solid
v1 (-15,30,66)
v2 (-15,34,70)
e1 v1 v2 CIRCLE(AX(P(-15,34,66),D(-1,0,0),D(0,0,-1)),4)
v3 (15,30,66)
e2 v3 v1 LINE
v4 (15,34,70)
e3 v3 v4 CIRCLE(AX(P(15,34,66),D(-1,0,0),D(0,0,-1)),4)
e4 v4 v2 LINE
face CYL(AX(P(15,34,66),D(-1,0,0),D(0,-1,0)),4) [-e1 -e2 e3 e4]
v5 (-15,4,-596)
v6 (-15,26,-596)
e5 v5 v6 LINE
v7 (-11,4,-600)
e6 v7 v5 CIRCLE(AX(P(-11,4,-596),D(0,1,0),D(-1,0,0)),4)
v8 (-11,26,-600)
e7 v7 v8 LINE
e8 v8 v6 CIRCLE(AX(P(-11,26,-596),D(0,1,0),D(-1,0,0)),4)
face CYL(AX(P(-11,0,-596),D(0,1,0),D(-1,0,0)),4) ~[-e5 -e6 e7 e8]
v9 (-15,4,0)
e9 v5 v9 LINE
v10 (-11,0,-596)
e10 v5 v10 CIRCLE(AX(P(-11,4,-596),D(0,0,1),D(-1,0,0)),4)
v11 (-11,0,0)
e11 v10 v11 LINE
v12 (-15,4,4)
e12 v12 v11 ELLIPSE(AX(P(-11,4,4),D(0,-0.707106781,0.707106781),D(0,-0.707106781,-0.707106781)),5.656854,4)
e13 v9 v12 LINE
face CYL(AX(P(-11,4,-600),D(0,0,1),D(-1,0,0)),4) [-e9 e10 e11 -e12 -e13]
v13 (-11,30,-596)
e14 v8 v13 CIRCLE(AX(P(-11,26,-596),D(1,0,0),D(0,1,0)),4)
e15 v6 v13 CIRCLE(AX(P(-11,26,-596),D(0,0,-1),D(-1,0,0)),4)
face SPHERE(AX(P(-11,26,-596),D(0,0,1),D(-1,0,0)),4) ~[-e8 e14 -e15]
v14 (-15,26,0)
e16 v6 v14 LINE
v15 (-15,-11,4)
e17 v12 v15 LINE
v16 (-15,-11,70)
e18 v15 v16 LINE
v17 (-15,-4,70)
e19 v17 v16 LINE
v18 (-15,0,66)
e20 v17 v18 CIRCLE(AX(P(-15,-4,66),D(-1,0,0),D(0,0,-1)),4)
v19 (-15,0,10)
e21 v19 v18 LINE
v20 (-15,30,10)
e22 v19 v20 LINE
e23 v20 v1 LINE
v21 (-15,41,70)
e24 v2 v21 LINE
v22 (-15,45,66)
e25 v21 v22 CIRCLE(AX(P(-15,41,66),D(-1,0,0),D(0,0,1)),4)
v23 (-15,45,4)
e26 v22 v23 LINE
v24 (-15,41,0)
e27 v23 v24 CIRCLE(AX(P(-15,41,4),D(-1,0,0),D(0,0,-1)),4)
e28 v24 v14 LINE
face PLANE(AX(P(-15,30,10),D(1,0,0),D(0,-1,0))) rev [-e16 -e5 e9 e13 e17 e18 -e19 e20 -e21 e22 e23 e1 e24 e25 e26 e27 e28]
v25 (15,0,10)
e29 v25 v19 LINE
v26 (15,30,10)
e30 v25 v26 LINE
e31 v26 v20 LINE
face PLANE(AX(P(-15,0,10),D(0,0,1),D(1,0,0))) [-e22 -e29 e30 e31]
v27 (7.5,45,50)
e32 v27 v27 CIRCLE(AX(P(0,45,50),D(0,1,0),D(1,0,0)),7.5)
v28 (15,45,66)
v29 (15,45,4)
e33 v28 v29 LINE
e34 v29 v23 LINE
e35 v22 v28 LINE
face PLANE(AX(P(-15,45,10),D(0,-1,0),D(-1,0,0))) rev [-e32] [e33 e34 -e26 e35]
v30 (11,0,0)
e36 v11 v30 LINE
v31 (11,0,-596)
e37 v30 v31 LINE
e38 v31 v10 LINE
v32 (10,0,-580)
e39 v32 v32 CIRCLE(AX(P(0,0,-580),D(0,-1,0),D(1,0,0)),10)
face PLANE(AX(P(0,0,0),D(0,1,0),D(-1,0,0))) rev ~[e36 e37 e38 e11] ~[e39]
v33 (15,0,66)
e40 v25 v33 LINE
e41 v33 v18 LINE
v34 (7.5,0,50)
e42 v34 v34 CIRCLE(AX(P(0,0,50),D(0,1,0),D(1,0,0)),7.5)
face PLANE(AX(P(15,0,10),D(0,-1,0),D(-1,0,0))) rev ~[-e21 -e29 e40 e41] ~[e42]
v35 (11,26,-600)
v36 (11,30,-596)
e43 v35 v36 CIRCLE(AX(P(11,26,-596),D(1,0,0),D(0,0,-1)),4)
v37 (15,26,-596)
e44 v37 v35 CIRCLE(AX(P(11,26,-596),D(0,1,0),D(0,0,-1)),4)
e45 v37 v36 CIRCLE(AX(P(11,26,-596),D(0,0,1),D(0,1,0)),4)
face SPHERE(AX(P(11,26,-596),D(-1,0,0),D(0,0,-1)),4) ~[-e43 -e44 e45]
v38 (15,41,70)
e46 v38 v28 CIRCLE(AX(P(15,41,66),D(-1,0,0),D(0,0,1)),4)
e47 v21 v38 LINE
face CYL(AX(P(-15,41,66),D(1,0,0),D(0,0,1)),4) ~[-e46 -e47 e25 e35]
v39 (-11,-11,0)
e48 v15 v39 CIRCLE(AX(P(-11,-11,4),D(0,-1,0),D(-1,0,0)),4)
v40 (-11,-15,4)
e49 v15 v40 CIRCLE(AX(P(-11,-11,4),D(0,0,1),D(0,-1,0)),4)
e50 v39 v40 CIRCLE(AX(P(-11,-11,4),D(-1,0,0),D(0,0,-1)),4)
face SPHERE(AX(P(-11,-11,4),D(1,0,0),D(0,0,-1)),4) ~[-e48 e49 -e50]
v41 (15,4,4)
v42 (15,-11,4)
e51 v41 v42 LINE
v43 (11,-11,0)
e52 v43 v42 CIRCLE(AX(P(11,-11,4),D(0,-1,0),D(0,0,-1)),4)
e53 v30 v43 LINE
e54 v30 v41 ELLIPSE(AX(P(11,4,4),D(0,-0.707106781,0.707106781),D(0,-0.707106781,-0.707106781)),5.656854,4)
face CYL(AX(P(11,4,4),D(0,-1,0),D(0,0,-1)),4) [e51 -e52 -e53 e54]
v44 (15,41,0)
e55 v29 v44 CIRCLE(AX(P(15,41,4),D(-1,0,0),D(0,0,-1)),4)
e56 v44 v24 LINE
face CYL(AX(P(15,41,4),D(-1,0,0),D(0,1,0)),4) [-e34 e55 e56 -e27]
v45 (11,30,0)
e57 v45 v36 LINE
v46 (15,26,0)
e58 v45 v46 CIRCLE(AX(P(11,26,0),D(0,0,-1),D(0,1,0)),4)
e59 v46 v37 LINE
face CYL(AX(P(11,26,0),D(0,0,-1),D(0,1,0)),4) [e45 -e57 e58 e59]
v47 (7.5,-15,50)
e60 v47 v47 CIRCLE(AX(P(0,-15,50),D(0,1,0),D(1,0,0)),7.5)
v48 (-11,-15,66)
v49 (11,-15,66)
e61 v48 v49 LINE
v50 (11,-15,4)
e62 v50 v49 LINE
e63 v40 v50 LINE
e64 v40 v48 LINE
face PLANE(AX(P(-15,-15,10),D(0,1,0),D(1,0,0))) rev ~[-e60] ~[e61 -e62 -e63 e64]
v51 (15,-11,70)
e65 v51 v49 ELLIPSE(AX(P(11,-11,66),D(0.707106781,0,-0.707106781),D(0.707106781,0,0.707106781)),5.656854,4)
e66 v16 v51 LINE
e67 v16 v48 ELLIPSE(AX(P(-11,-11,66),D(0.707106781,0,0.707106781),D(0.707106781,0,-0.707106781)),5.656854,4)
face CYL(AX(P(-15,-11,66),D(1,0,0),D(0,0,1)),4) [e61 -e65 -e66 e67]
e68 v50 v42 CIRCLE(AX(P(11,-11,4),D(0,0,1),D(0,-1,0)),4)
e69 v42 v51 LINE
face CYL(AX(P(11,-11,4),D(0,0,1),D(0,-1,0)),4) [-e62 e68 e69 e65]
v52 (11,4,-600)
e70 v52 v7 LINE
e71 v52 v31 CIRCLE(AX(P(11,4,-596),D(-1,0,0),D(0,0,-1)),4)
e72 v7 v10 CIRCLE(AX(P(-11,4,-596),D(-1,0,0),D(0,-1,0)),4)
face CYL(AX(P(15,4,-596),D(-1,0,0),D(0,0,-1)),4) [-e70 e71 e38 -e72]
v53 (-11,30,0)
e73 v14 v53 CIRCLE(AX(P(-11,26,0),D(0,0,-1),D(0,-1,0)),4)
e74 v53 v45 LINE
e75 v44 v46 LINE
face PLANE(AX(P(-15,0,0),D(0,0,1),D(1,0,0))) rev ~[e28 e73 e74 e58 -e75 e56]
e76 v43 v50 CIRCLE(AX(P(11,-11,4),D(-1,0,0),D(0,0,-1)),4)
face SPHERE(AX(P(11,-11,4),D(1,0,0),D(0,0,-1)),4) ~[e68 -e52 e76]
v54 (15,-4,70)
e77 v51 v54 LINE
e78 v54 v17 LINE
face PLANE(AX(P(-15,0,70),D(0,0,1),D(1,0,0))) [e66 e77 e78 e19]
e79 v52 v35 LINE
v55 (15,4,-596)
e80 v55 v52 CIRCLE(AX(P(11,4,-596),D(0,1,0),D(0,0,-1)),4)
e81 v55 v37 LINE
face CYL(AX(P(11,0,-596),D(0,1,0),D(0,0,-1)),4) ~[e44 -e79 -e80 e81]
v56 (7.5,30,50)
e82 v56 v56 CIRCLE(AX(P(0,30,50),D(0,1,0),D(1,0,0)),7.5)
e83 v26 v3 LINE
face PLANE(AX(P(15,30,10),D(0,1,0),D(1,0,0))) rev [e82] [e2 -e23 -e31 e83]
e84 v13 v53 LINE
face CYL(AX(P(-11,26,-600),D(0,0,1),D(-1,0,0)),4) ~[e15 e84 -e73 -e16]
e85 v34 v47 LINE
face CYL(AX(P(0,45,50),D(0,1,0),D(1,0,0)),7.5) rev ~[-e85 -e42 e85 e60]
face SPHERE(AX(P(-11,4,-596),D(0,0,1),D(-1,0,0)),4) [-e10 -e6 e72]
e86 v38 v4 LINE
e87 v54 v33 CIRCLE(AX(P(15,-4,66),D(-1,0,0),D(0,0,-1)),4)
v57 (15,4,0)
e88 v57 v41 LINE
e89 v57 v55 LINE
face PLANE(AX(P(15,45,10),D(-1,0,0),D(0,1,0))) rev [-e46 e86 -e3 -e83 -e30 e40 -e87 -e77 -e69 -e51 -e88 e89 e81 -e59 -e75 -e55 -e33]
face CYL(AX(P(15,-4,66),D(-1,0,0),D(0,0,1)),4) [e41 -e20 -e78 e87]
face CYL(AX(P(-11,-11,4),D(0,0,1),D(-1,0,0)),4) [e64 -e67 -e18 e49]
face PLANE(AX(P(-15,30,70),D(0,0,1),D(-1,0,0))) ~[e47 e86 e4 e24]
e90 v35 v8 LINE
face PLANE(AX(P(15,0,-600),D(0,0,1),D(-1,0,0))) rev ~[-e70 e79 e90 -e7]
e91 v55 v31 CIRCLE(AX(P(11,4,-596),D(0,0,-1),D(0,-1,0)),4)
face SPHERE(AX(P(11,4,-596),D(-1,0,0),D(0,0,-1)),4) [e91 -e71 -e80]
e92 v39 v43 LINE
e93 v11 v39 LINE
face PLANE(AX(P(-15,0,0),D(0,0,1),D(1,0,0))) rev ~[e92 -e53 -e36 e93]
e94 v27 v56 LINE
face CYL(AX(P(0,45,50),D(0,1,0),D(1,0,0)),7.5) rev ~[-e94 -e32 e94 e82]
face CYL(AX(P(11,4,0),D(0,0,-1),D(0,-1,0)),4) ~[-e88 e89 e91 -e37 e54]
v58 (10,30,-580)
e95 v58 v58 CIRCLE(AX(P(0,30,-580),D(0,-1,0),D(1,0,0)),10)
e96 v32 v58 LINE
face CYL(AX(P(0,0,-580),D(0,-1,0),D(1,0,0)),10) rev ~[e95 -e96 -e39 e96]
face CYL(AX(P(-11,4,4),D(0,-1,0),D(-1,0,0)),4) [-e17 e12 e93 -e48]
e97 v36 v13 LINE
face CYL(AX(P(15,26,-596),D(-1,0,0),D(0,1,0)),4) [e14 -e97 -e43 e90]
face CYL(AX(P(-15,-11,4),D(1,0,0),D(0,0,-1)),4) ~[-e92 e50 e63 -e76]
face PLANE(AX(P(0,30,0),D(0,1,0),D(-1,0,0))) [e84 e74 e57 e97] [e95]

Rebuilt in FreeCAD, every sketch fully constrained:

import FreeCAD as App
import Part
import Sketcher
from FreeCAD import Vector


def edges_at(feature, points):
    """Names of the edges that pass closest to the given points."""
    edges = feature.Shape.Edges
    near = lambda p: min(range(len(edges)), key=lambda i: edges[i].distToShape(Part.Vertex(*p))[0])
    return sorted({f"Edge{near(p) + 1}" for p in points})

doc = App.newDocument("Part")
params = doc.addObject("Spreadsheet::Sheet", "Params")
for row, (alias, value) in enumerate([
    ("sketch1_width", "30 mm"),
    ("sketch1_height", "600 mm"),
    ("pad1_length", "30 mm"),
    ("sketch2_width", "30 mm"),
    ("sketch2_height", "60 mm"),
    ("pad2_length", "10 mm"),
    ("sketch3_width", "30 mm"),
    ("sketch3_height", "15 mm"),
    ("pad3_length", "60 mm"),
    ("sketch4_diameter", "15 mm"),
    ("fillet_radius", "4 mm"),
    ("sketch5_diameter", "20 mm"),
    ("fillet2_radius", "4 mm"),
    ("fillet3_radius", "4 mm"),
], start=1):
    params.set(f"A{row}", alias)
    params.set(f"B{row}", "=" + value)
    params.setAlias(f"B{row}", alias)

body = doc.addObject("PartDesign::Body", "Body")

sketch1 = doc.addObject("Sketcher::SketchObject", "Sketch")
body.addObject(sketch1)
sketch1.AttachmentSupport = (doc.XZ_Plane, [""])
sketch1.MapMode = "FlatFace"
sketch1.addGeometry(Part.LineSegment(Vector(-15, -600, 0), Vector(-15, 0, 0)), False)
sketch1.addGeometry(Part.LineSegment(Vector(-15, 0, 0), Vector(15, 0, 0)), False)
sketch1.addGeometry(Part.LineSegment(Vector(15, 0, 0), Vector(15, -600, 0)), False)
sketch1.addGeometry(Part.LineSegment(Vector(15, -600, 0), Vector(-15, -600, 0)), False)
sketch1.addConstraint(Sketcher.Constraint("Coincident", 0, 2, 1, 1))
sketch1.addConstraint(Sketcher.Constraint("Coincident", 1, 2, 2, 1))
sketch1.addConstraint(Sketcher.Constraint("Coincident", 2, 2, 3, 1))
sketch1.addConstraint(Sketcher.Constraint("Coincident", 3, 2, 0, 1))
sketch1.addConstraint(Sketcher.Constraint("Vertical", 0))
sketch1.addConstraint(Sketcher.Constraint("Horizontal", 1))
sketch1.addConstraint(Sketcher.Constraint("Vertical", 2))
sketch1.addConstraint(Sketcher.Constraint("Horizontal", 3))
sketch1.addConstraint(Sketcher.Constraint("Symmetric", 0, 2, 1, 2, -1, 1))
sketch1.addConstraint(Sketcher.Constraint("DistanceX", 1, 1, 1, 2, 30.0))
sketch1.addConstraint(Sketcher.Constraint("DistanceY", 0, 1, 0, 2, 600.0))
sketch1.setExpression("Constraints[9]", "Params.sketch1_width")
sketch1.setExpression("Constraints[10]", "Params.sketch1_height")
pad1 = doc.addObject("PartDesign::Pad", "Pad")
body.addObject(pad1)
pad1.Profile = sketch1
pad1.setExpression("Length", "Params.pad1_length")
pad1.Reversed = True

sketch2 = doc.addObject("Sketcher::SketchObject", "Sketch001")
body.addObject(sketch2)
sketch2.AttachmentSupport = (doc.XY_Plane, [""])
sketch2.MapMode = "FlatFace"
sketch2.addGeometry(Part.LineSegment(Vector(-15, -15, 0), Vector(15, -15, 0)), False)
sketch2.addGeometry(Part.LineSegment(Vector(15, -15, 0), Vector(15, 45, 0)), False)
sketch2.addGeometry(Part.LineSegment(Vector(15, 45, 0), Vector(-15, 45, 0)), False)
sketch2.addGeometry(Part.LineSegment(Vector(-15, 45, 0), Vector(-15, -15, 0)), False)
sketch2.addConstraint(Sketcher.Constraint("Coincident", 0, 2, 1, 1))
sketch2.addConstraint(Sketcher.Constraint("Coincident", 1, 2, 2, 1))
sketch2.addConstraint(Sketcher.Constraint("Coincident", 2, 2, 3, 1))
sketch2.addConstraint(Sketcher.Constraint("Coincident", 3, 2, 0, 1))
sketch2.addConstraint(Sketcher.Constraint("Horizontal", 0))
sketch2.addConstraint(Sketcher.Constraint("Vertical", 1))
sketch2.addConstraint(Sketcher.Constraint("Horizontal", 2))
sketch2.addConstraint(Sketcher.Constraint("Vertical", 3))
sketch2.addConstraint(Sketcher.Constraint("DistanceX", 0, 1, 0, 2, 30.0))
sketch2.addConstraint(Sketcher.Constraint("DistanceY", 1, 1, 1, 2, 60.0))
sketch2.addConstraint(Sketcher.Constraint("DistanceX", -1, 1, 0, 2, 15.0))
sketch2.addConstraint(Sketcher.Constraint("DistanceY", 0, 2, -1, 1, 15.0))
sketch2.setExpression("Constraints[8]", "Params.sketch2_width")
sketch2.setExpression("Constraints[9]", "Params.sketch2_height")
pad2 = doc.addObject("PartDesign::Pad", "Pad001")
body.addObject(pad2)
pad2.Profile = sketch2
pad2.setExpression("Length", "Params.pad2_length")

sketch3 = doc.addObject("Sketcher::SketchObject", "Sketch002")
body.addObject(sketch3)
sketch3.AttachmentSupport = (doc.XY_Plane, [""])
sketch3.MapMode = "FlatFace"
sketch3.AttachmentOffset = App.Placement(Vector(0, 0, 10), App.Rotation())
sketch3.addGeometry(Part.LineSegment(Vector(-15, 0, 0), Vector(-15, -15, 0)), False)
sketch3.addGeometry(Part.LineSegment(Vector(-15, -15, 0), Vector(15, -15, 0)), False)
sketch3.addGeometry(Part.LineSegment(Vector(15, -15, 0), Vector(15, 0, 0)), False)
sketch3.addGeometry(Part.LineSegment(Vector(15, 0, 0), Vector(-15, 0, 0)), False)
sketch3.addConstraint(Sketcher.Constraint("Coincident", 0, 2, 1, 1))
sketch3.addConstraint(Sketcher.Constraint("Coincident", 1, 2, 2, 1))
sketch3.addConstraint(Sketcher.Constraint("Coincident", 2, 2, 3, 1))
sketch3.addConstraint(Sketcher.Constraint("Coincident", 3, 2, 0, 1))
sketch3.addConstraint(Sketcher.Constraint("Vertical", 0))
sketch3.addConstraint(Sketcher.Constraint("Horizontal", 1))
sketch3.addConstraint(Sketcher.Constraint("Vertical", 2))
sketch3.addConstraint(Sketcher.Constraint("Horizontal", 3))
sketch3.addConstraint(Sketcher.Constraint("Symmetric", 2, 2, 3, 2, -1, 1))
sketch3.addConstraint(Sketcher.Constraint("DistanceX", 1, 1, 1, 2, 30.0))
sketch3.addConstraint(Sketcher.Constraint("DistanceY", 0, 2, 0, 1, 15.0))
sketch3.setExpression("Constraints[9]", "Params.sketch3_width")
sketch3.setExpression("Constraints[10]", "Params.sketch3_height")
pad3 = doc.addObject("PartDesign::Pad", "Pad002")
body.addObject(pad3)
pad3.Profile = sketch3
pad3.setExpression("Length", "Params.pad3_length")
doc.recompute()

datumplane = doc.addObject("PartDesign::Plane", "DatumPlane")
body.addObject(datumplane)
datumplane.AttachmentSupport = (doc.XZ_Plane, [""])
datumplane.MapMode = "FlatFace"
datumplane.AttachmentOffset = App.Placement(Vector(0, 0, -15), App.Rotation())
mirrored = doc.addObject("PartDesign::Mirrored", "Mirrored")
body.addObject(mirrored)
mirrored.Originals = [pad3]
mirrored.MirrorPlane = (datumplane, [""])
body.Tip = mirrored

sketch4 = doc.addObject("Sketcher::SketchObject", "Sketch003")
body.addObject(sketch4)
sketch4.AttachmentSupport = (doc.XZ_Plane, [""])
sketch4.MapMode = "FlatFace"
sketch4.AttachmentOffset = App.Placement(Vector(0, 0, -45), App.Rotation())
sketch4.addGeometry(Part.Circle(Vector(0, 50, 0), Vector(0, 0, 1), 8), False)
sketch4.addConstraint(Sketcher.Constraint("PointOnObject", 0, 3, -2))
sketch4.addConstraint(Sketcher.Constraint("Diameter", 0, 15.0))
sketch4.addConstraint(Sketcher.Constraint("DistanceY", -1, 1, 0, 3, 50.0))
sketch4.setExpression("Constraints[1]", "Params.sketch4_diameter")
pocket1 = doc.addObject("PartDesign::Pocket", "Pocket")
body.addObject(pocket1)
pocket1.Profile = sketch4
pocket1.Type = "ThroughAll"
pocket1.Reversed = True
doc.recompute()

fillet = doc.addObject("PartDesign::Fillet", "Fillet")
body.addObject(fillet)
fillet.Base = (pocket1, edges_at(pocket1, [
    (0, 45, 0),
    (0, 45, 70),
    (0, 0, 70),
    (-15, 0, -300),
    (-15, 30, -300),
    (-15, 15, -600),
    (0, 0, -600),
    (0, 30, -600),
    (15, 15, -600),
    (15, 0, -300),
    (15, 30, -300),
    (0, -15, 0),
]))
fillet.setExpression("Radius", "Params.fillet_radius")

sketch5 = doc.addObject("Sketcher::SketchObject", "Sketch004")
body.addObject(sketch5)
sketch5.AttachmentSupport = (doc.XZ_Plane, [""])
sketch5.MapMode = "FlatFace"
sketch5.addGeometry(Part.Circle(Vector(0, -580, 0), Vector(0, 0, 1), 10), False)
sketch5.addConstraint(Sketcher.Constraint("PointOnObject", 0, 3, -2))
sketch5.addConstraint(Sketcher.Constraint("Diameter", 0, 20.0))
sketch5.addConstraint(Sketcher.Constraint("DistanceY", 0, 3, -1, 1, 580.0))
sketch5.setExpression("Constraints[1]", "Params.sketch5_diameter")
pocket2 = doc.addObject("PartDesign::Pocket", "Pocket001")
body.addObject(pocket2)
pocket2.Profile = sketch5
pocket2.Type = "ThroughAll"
doc.recompute()

fillet2 = doc.addObject("PartDesign::Fillet", "Fillet001")
body.addObject(fillet2)
fillet2.Base = (pocket2, edges_at(pocket2, [(0, -15, 70), (15, -3.5, 0), (-15, -3.5, 0)]))
fillet2.setExpression("Radius", "Params.fillet2_radius")
doc.recompute()

fillet3 = doc.addObject("PartDesign::Fillet", "Fillet002")
body.addObject(fillet3)
fillet3.Base = (fillet2, edges_at(fillet2, [(0, 30, 70)]))
fillet3.setExpression("Radius", "Params.fillet3_radius")

doc.recompute()
